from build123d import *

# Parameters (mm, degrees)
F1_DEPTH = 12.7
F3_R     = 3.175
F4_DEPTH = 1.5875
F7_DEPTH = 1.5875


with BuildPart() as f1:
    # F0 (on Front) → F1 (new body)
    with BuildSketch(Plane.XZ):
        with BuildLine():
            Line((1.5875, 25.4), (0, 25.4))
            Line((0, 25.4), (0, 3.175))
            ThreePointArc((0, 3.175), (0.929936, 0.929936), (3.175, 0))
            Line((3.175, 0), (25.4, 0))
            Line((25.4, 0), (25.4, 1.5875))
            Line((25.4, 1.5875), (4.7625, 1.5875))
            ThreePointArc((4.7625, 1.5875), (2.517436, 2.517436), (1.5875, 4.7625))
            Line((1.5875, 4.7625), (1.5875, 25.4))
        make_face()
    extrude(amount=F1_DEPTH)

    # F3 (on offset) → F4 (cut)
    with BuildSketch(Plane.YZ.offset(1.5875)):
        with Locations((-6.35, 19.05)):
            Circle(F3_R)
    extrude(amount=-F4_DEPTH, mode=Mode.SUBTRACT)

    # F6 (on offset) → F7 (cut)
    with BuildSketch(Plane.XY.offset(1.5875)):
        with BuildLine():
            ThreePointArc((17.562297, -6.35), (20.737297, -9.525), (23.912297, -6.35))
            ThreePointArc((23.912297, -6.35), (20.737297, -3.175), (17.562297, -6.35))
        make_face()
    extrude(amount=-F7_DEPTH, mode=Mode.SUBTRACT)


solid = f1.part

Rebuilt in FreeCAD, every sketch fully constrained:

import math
import FreeCAD as App
import Part
import Sketcher

V = App.Vector
Q = App.Units.Quantity

doc = App.newDocument("Part")
body = doc.addObject("PartDesign::Body", "Body")

# Sketch on XZ plane
sketch1 = body.newObject("Sketcher::SketchObject", "Sketch")
sketch1.AttachmentSupport = (doc.getObject("XZ_Plane"), [""])
sketch1.MapMode = "FlatFace"
sketch1.addGeometry([
    Part.LineSegment(V(1.6, 25.4, 0), V(0, 25.4, 0)),  # 0
    Part.LineSegment(V(0, 25.4, 0), V(0, 3.2, 0)),  # 1
    Part.ArcOfCircle(Part.Circle(V(3.2, 3.2, 0), V(0, 0, 1), 3.2), math.radians(-180), math.radians(-90)),  # 2
    Part.LineSegment(V(3.2, 0, 0), V(25.4, 0, 0)),  # 3
    Part.LineSegment(V(25.4, 0, 0), V(25.4, 1.6, 0)),  # 4
    Part.LineSegment(V(25.4, 1.6, 0), V(4.8, 1.6, 0)),  # 5
    Part.ArcOfCircle(Part.Circle(V(4.8, 4.8, 0), V(0, 0, 1), 3.2), math.radians(-180), math.radians(-90)),  # 6
    Part.LineSegment(V(1.6, 4.8, 0), V(1.6, 25.4, 0)),  # 7
], False)
sketch1.addConstraint([
    Sketcher.Constraint("Coincident", 0, 2, 1, 1),
    Sketcher.Constraint("Tangent", 1, 2, 2, 1),
    Sketcher.Constraint("Tangent", 2, 2, 3, 1),
    Sketcher.Constraint("Coincident", 3, 2, 4, 1),
    Sketcher.Constraint("Coincident", 4, 2, 5, 1),
    Sketcher.Constraint("Tangent", 5, 2, 6, 2),
    Sketcher.Constraint("Tangent", 6, 1, 7, 1),
    Sketcher.Constraint("Coincident", 7, 2, 0, 1),
    Sketcher.Constraint("Horizontal", 0),
    Sketcher.Constraint("Vertical", 1),
    Sketcher.Constraint("Horizontal", 3),
    Sketcher.Constraint("Vertical", 4),
    Sketcher.Constraint("Horizontal", 5),
    Sketcher.Constraint("Vertical", 7),
    Sketcher.Constraint("Equal", 2, 6),
    Sketcher.Constraint("PointOnObject", 0, 2, -2),
    Sketcher.Constraint("PointOnObject", 2, 2, -1),
    Sketcher.Constraint("Equal", 3, 1),
    Sketcher.Constraint("Equal", 0, 4),
    Sketcher.Constraint("DistanceY", -1, 1, 0, 2, Q("1 in")),
    Sketcher.Constraint("Radius", 2, Q("0.125 in")),
    Sketcher.Constraint("DistanceX", 0, 2, 0, 1, Q("0.0625 in")),
])
pad1 = body.newObject("PartDesign::Pad", "Pad")
pad1.Profile = sketch1
pad1.Length = Q("0.5 in")

# Sketch on YZ plane
sketch2 = body.newObject("Sketcher::SketchObject", "Sketch001")
sketch2.AttachmentSupport = (doc.getObject("YZ_Plane"), [""])
sketch2.MapMode = "FlatFace"
sketch2.AttachmentOffset = App.Placement(V(0, 0, 0.0625 * 25.4), App.Rotation())
sketch2.addGeometry(Part.Circle(V(-6.3, 19.1, 0), V(0, 0, 1), 3.2), False)
sketch2.addConstraint([
    Sketcher.Constraint("Diameter", 0, Q("0.25 in")),
    Sketcher.Constraint("DistanceX", 0, 3, -1, 1, Q("0.25 in")),
    Sketcher.Constraint("DistanceY", -1, 1, 0, 3, Q("0.75 in")),
])
pocket1 = body.newObject("PartDesign::Pocket", "Pocket")
pocket1.Profile = sketch2
pocket1.Length = Q("0.0625 in")

# Sketch on XY plane
sketch3 = body.newObject("Sketcher::SketchObject", "Sketch002")
sketch3.AttachmentSupport = (doc.getObject("XY_Plane"), [""])
sketch3.MapMode = "FlatFace"
sketch3.AttachmentOffset = App.Placement(V(0, 0, 0.0625 * 25.4), App.Rotation())
sketch3.addGeometry(Part.Circle(V(20.7, -6.3, 0), V(0, 0, 1), 3.2), False)
sketch3.addConstraint([
    Sketcher.Constraint("Diameter", 0, Q("0.25 in")),
    Sketcher.Constraint("DistanceY", 0, 3, -1, 1, Q("0.25 in")),
    Sketcher.Constraint("DistanceX", -1, 1, 0, 3, Q("20.737297 mm")),
])
pocket2 = body.newObject("PartDesign::Pocket", "Pocket001")
pocket2.Profile = sketch3
pocket2.Length = Q("0.0625 in")

doc.recompute()
